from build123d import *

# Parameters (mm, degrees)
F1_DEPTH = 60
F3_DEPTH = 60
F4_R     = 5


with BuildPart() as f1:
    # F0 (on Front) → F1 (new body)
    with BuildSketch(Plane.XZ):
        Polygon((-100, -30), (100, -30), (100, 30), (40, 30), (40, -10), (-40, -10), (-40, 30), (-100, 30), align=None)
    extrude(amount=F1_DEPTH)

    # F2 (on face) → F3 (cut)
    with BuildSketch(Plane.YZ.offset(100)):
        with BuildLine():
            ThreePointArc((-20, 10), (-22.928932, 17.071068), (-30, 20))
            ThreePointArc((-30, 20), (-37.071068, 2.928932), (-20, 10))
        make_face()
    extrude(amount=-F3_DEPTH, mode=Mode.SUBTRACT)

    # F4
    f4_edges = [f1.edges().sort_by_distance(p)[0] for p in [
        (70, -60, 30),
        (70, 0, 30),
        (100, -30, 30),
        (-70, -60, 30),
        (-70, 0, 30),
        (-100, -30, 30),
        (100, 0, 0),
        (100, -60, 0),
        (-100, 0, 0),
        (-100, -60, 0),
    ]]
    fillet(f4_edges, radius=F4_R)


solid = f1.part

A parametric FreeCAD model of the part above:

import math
import FreeCAD as App
import Part
import Sketcher

V = App.Vector


def edges_at(feature, points):
    """Names of the edges that pass closest to the given points."""
    edges = feature.Shape.Edges
    near = lambda p: min(range(len(edges)), key=lambda i: edges[i].distToShape(Part.Vertex(*p))[0])
    return sorted({f"Edge{near(p) + 1}" for p in points})


def add_polygon(sketch, points):
    """Adds a closed chain of lines whose ends are joined by coincident constraints."""
    first, n = sketch.GeometryCount, len(points)
    for a, b in zip(points, points[1:] + points[:1]):
        sketch.addGeometry(Part.LineSegment(App.Vector(*a, 0), App.Vector(*b, 0)), False)
    for i in range(n):
        sketch.addConstraint(Sketcher.Constraint("Coincident", first + i, 2, first + (i + 1) % n, 1))

doc = App.newDocument("Part")
body = doc.addObject("PartDesign::Body", "Body")

# Sketch on XZ plane
sketch1 = body.newObject("Sketcher::SketchObject", "Sketch")
sketch1.AttachmentSupport = (doc.getObject("XZ_Plane"), [""])
sketch1.MapMode = "FlatFace"
add_polygon(sketch1, [(-100, -30), (100, -30), (100, 30), (40, 30), (40, -10), (-40, -10), (-40, 30), (-100, 30)])  # lines 0-7
sketch1.addConstraint(Sketcher.Constraint("Horizontal", 0))
sketch1.addConstraint(Sketcher.Constraint("Vertical", 1))
sketch1.addConstraint(Sketcher.Constraint("Horizontal", 2))
sketch1.addConstraint(Sketcher.Constraint("Vertical", 3))
sketch1.addConstraint(Sketcher.Constraint("Horizontal", 4))
sketch1.addConstraint(Sketcher.Constraint("Vertical", 5))
sketch1.addConstraint(Sketcher.Constraint("Horizontal", 6))
sketch1.addConstraint(Sketcher.Constraint("Vertical", 7))
sketch1.addConstraint(Sketcher.Constraint("Symmetric", 0, 2, 6, 2, -1, 1))
sketch1.addConstraint(Sketcher.Constraint("Symmetric", 2, 2, 5, 2, -2))
sketch1.addConstraint(Sketcher.Constraint("Equal", 6, 1))
sketch1.addConstraint(Sketcher.Constraint("DistanceX", 0, 1, 0, 2, 200.0))
sketch1.addConstraint(Sketcher.Constraint("DistanceX", 2, 2, 2, 1, 60.0))
sketch1.addConstraint(Sketcher.Constraint("DistanceY", 3, 2, 3, 1, 40.0))
pad1 = body.newObject("PartDesign::Pad", "Pad")
pad1.Profile = sketch1
pad1.Length = 60

# Sketch on YZ plane
sketch2 = body.newObject("Sketcher::SketchObject", "Sketch001")
sketch2.AttachmentSupport = (doc.getObject("YZ_Plane"), [""])
sketch2.MapMode = "FlatFace"
sketch2.AttachmentOffset = App.Placement(V(0, 0, 100), App.Rotation())
sketch2.addGeometry(Part.ArcOfCircle(Part.Circle(V(-30, 10, 0), V(0, 0, 1), 10), math.radians(0), math.radians(90)), False)
sketch2.addGeometry(Part.ArcOfCircle(Part.Circle(V(-30, 10, 0), V(0, 0, 1), 10), math.radians(90), math.radians(360)), False)
sketch2.addConstraint(Sketcher.Constraint("Tangent", 0, 1, 1, 2))
sketch2.addConstraint(Sketcher.Constraint("Coincident", 1, 1, 0, 2))
sketch2.addConstraint(Sketcher.Constraint("Horizontal", 1, 3, 0, 1))
sketch2.addConstraint(Sketcher.Constraint("Vertical", 0, 3, 1, 1))
sketch2.addConstraint(Sketcher.Constraint("Radius", 0, 9.999999))
sketch2.addConstraint(Sketcher.Constraint("DistanceX", 0, 3, -1, 1, 29.999999))
sketch2.addConstraint(Sketcher.Constraint("DistanceY", -1, 1, 0, 3, 10.000001))
pocket1 = body.newObject("PartDesign::Pocket", "Pocket")
pocket1.Profile = sketch2
pocket1.Length = 60
doc.recompute()

fillet = body.newObject("PartDesign::Fillet", "Fillet")
fillet.Base = (pocket1, edges_at(pocket1, [
    (70, -60, 30),
    (70, 0, 30),
    (100, -30, 30),
    (-70, -60, 30),
    (-70, 0, 30),
    (-100, -30, 30),
    (100, 0, 0),
    (100, -60, 0),
    (-100, 0, 0),
    (-100, -60, 0),
]))
fillet.Radius = 5

doc.recompute()
